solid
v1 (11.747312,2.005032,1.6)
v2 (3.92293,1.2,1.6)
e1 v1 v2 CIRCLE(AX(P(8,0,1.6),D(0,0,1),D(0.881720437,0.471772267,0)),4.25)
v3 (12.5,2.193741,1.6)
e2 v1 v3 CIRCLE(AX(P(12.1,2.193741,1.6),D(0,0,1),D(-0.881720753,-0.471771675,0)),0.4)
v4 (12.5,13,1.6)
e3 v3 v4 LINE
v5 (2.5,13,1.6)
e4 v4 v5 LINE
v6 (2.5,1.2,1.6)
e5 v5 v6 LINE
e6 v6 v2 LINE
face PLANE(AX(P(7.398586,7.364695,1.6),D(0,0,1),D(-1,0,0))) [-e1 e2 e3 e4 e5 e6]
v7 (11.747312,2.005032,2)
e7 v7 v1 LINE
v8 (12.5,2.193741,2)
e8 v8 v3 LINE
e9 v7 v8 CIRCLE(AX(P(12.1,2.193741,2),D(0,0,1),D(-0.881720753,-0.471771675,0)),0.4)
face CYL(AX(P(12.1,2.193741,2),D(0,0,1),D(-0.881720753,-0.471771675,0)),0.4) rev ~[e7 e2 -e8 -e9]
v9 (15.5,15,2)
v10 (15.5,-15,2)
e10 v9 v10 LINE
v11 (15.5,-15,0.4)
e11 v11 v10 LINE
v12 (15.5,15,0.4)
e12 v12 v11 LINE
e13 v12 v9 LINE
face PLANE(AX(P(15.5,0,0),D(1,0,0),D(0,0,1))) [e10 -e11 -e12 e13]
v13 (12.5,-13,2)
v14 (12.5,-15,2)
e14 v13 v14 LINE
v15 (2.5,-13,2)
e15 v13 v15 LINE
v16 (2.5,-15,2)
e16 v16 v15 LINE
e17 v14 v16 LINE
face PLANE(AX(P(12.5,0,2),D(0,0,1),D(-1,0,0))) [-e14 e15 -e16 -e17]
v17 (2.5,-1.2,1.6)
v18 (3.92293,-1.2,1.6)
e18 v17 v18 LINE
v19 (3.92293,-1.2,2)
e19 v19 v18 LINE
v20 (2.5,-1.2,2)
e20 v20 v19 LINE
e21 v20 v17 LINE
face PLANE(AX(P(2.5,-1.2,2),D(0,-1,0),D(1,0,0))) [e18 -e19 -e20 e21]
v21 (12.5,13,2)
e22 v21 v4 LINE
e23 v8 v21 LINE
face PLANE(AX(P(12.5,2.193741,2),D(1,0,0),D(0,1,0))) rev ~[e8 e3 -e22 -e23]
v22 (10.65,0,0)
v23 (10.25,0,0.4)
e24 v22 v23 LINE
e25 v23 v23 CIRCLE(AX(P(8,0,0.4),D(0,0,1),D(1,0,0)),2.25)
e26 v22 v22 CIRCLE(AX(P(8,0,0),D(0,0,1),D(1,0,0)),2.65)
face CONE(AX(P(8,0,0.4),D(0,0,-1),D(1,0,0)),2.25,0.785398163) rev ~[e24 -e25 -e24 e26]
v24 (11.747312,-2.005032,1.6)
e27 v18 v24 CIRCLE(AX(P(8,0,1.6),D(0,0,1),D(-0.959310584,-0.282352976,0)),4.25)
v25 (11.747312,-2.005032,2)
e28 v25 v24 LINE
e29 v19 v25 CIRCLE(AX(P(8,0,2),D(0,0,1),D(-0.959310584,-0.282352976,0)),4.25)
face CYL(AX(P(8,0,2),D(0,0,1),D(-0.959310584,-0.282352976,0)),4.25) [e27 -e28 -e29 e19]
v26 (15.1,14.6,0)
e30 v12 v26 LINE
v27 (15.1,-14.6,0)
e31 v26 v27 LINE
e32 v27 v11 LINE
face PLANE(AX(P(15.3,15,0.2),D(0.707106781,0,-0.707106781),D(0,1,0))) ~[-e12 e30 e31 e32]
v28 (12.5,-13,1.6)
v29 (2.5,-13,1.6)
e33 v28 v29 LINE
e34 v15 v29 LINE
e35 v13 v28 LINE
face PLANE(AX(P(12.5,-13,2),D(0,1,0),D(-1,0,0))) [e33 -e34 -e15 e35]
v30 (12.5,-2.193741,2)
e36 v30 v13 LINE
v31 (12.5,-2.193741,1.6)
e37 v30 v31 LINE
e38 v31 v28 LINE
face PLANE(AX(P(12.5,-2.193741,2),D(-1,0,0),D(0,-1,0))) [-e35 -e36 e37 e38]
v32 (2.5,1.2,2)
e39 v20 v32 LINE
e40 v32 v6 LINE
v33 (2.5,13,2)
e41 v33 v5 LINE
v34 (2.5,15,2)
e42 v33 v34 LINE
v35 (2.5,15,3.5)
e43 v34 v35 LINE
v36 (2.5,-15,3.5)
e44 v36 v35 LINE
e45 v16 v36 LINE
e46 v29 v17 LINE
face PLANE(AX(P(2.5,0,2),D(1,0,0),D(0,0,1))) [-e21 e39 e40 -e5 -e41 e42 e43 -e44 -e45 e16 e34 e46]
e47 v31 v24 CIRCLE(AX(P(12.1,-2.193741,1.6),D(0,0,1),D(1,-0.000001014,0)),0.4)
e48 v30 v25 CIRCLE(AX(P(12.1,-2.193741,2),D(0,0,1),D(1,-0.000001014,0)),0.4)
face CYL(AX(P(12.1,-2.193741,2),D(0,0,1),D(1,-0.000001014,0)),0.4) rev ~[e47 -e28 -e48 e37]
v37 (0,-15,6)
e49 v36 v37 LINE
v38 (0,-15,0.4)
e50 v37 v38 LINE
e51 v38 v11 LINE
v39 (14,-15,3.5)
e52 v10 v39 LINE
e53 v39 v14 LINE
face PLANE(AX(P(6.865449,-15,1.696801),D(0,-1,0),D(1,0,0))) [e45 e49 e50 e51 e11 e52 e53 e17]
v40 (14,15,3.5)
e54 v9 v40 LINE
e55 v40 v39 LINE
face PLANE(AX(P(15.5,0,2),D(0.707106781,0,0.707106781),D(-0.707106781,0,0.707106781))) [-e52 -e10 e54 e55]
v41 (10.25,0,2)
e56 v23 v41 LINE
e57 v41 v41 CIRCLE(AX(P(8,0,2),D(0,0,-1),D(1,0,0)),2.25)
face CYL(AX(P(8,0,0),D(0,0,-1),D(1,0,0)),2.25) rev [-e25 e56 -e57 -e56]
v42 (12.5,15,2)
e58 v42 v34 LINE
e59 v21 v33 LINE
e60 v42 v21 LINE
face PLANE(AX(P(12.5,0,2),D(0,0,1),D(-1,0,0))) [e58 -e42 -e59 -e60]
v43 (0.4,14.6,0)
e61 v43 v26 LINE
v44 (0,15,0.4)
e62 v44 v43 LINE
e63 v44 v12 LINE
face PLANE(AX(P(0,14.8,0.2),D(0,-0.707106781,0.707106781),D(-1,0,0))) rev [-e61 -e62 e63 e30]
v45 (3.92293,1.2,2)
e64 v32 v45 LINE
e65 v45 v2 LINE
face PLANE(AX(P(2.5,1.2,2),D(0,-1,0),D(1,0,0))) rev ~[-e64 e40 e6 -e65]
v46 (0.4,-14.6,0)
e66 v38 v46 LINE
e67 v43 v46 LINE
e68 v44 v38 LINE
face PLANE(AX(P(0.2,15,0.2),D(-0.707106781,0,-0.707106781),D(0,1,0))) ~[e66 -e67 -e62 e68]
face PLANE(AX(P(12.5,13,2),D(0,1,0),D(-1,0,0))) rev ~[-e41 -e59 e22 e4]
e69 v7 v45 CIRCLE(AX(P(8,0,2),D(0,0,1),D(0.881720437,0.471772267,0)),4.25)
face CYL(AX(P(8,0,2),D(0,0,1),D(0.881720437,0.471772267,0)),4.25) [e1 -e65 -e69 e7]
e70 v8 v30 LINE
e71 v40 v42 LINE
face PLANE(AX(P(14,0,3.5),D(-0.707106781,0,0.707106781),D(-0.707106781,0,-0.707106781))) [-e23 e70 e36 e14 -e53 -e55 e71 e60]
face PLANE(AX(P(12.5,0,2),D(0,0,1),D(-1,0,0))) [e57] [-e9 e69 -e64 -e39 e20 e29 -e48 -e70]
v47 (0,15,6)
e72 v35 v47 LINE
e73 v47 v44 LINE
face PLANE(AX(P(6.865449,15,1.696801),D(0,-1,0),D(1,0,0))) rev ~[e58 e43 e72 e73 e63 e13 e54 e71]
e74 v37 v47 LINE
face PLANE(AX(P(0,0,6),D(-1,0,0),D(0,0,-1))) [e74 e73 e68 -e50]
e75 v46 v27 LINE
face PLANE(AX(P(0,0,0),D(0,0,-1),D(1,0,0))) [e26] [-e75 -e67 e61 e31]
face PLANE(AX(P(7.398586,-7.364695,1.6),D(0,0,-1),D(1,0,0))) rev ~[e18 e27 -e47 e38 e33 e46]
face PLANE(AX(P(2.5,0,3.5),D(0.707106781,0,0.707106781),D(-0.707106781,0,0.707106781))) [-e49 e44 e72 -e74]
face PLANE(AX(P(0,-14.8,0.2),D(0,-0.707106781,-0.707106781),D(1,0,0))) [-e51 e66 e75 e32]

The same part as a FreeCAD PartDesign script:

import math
import FreeCAD as App
import Part
import Sketcher
from FreeCAD import Vector
Q = App.Units.Quantity


def edges_at(feature, points):
    """Names of the edges that pass closest to the given points."""
    edges = feature.Shape.Edges
    near = lambda p: min(range(len(edges)), key=lambda i: edges[i].distToShape(Part.Vertex(*p))[0])
    return sorted({f"Edge{near(p) + 1}" for p in points})

doc = App.newDocument("Part")
body = doc.addObject("PartDesign::Body", "Body")

sketch1 = body.newObject("Sketcher::SketchObject", "Sketch")
sketch1.AttachmentSupport = (doc.getObject("XZ_Plane"), [""])
sketch1.MapMode = "FlatFace"
sketch1.addGeometry(Part.LineSegment(Vector(0, 6, 0), Vector(0, 0, 0)), False)
sketch1.addGeometry(Part.LineSegment(Vector(0, 0, 0), Vector(15.5, 0, 0)), False)
sketch1.addGeometry(Part.LineSegment(Vector(15.5, 0, 0), Vector(15.5, 2, 0)), False)
sketch1.addGeometry(Part.LineSegment(Vector(15.5, 2, 0), Vector(14, 3.5, 0)), False)
sketch1.addGeometry(Part.LineSegment(Vector(14, 3.5, 0), Vector(12.5, 2, 0)), False)
sketch1.addGeometry(Part.LineSegment(Vector(12.5, 2, 0), Vector(2.5, 2, 0)), False)
sketch1.addGeometry(Part.LineSegment(Vector(2.5, 2, 0), Vector(2.5, 3.5, 0)), False)
sketch1.addGeometry(Part.LineSegment(Vector(2.5, 3.5, 0), Vector(0, 6, 0)), False)
sketch1.addConstraint(Sketcher.Constraint("Coincident", 0, 2, 1, 1))
sketch1.addConstraint(Sketcher.Constraint("Coincident", 1, 2, 2, 1))
sketch1.addConstraint(Sketcher.Constraint("Coincident", 2, 2, 3, 1))
sketch1.addConstraint(Sketcher.Constraint("Coincident", 3, 2, 4, 1))
sketch1.addConstraint(Sketcher.Constraint("Coincident", 4, 2, 5, 1))
sketch1.addConstraint(Sketcher.Constraint("Coincident", 5, 2, 6, 1))
sketch1.addConstraint(Sketcher.Constraint("Coincident", 6, 2, 7, 1))
sketch1.addConstraint(Sketcher.Constraint("Coincident", 7, 2, 0, 1))
sketch1.addConstraint(Sketcher.Constraint("Vertical", 0))
sketch1.addConstraint(Sketcher.Constraint("Horizontal", 1))
sketch1.addConstraint(Sketcher.Constraint("Vertical", 2))
sketch1.addConstraint(Sketcher.Constraint("Horizontal", 5))
sketch1.addConstraint(Sketcher.Constraint("Vertical", 6))
sketch1.addConstraint(Sketcher.Constraint("Coincident", 0, 2, -1, 1))
sketch1.addConstraint(Sketcher.Constraint("Perpendicular", 3, 4))
sketch1.addConstraint(Sketcher.Constraint("Perpendicular", 4, 7))
sketch1.addConstraint(Sketcher.Constraint("Horizontal", 2, 2, 4, 2))
sketch1.addConstraint(Sketcher.Constraint("Horizontal", 3, 2, 6, 2))
sketch1.addConstraint(Sketcher.Constraint("Equal", 3, 4))
sketch1.addConstraint(Sketcher.Constraint("DistanceX", 5, 2, 5, 1, Q("10 mm")))
sketch1.addConstraint(Sketcher.Constraint("DistanceY", 0, 2, 0, 1, Q("6 mm")))
sketch1.addConstraint(Sketcher.Constraint("DistanceY", 2, 1, 2, 2, Q("2 mm")))
sketch1.addConstraint(Sketcher.Constraint("DistanceX", 1, 1, 1, 2, Q("15.5 mm")))
pad1 = body.newObject("PartDesign::Pad", "Pad")
pad1.Profile = sketch1
pad1.Length = 30
pad1.Midplane = True

sketch2 = body.newObject("Sketcher::SketchObject", "Sketch001")
sketch2.AttachmentSupport = (doc.getObject("XY_Plane"), [""])
sketch2.MapMode = "FlatFace"
sketch2.addGeometry(Part.Circle(Vector(8, 0, 0), Vector(0, 0, 1), 2.2), False)
sketch2.addConstraint(Sketcher.Constraint("PointOnObject", 0, 3, -1))
sketch2.addConstraint(Sketcher.Constraint("Diameter", 0, Q("4.5 mm")))
sketch2.addConstraint(Sketcher.Constraint("DistanceX", -1, 1, 0, 3, Q("8 mm")))
pocket1 = body.newObject("PartDesign::Pocket", "Pocket")
pocket1.Profile = sketch2
pocket1.Type = "ThroughAll"
pocket1.Reversed = True

sketch3 = body.newObject("Sketcher::SketchObject", "Sketch002")
sketch3.AttachmentSupport = (doc.getObject("XY_Plane"), [""])
sketch3.MapMode = "FlatFace"
sketch3.AttachmentOffset = App.Placement(Vector(0, 0, 2), App.Rotation())
sketch3.addGeometry(Part.LineSegment(Vector(2.5, -13, 0), Vector(12.5, -13, 0)), False)
sketch3.addGeometry(Part.LineSegment(Vector(12.5, -13, 0), Vector(12.5, -2.19, 0)), False)
sketch3.addGeometry(Part.ArcOfCircle(Part.Circle(Vector(12.1, -2.19, 0), Vector(0, 0, 1), 0.4), math.radians(0), math.radians(152)), False)
sketch3.addGeometry(Part.ArcOfCircle(Part.Circle(Vector(8, 0, 0), Vector(0, 0, 1), 4.25), math.radians(-164), math.radians(-28)), False)
sketch3.addGeometry(Part.LineSegment(Vector(3.92, -1.2, 0), Vector(2.5, -1.2, 0)), False)
sketch3.addGeometry(Part.LineSegment(Vector(2.5, -1.2, 0), Vector(2.5, -13, 0)), False)
sketch3.addGeometry(Part.LineSegment(Vector(12.5, 13, 0), Vector(2.5, 13, 0)), False)
sketch3.addGeometry(Part.LineSegment(Vector(2.5, 13, 0), Vector(2.5, 1.2, 0)), False)
sketch3.addGeometry(Part.LineSegment(Vector(2.5, 1.2, 0), Vector(3.92, 1.2, 0)), False)
sketch3.addGeometry(Part.ArcOfCircle(Part.Circle(Vector(8, 0, 0), Vector(0, 0, 1), 4.25), math.radians(28), math.radians(164)), False)
sketch3.addGeometry(Part.ArcOfCircle(Part.Circle(Vector(12.1, 2.19, 0), Vector(0, 0, 1), 0.4), math.radians(-152), math.radians(0)), False)
sketch3.addGeometry(Part.LineSegment(Vector(12.5, 2.19, 0), Vector(12.5, 13, 0)), False)
sketch3.addConstraint(Sketcher.Constraint("Coincident", 0, 2, 1, 1))
sketch3.addConstraint(Sketcher.Constraint("Tangent", 1, 2, 2, 1))
sketch3.addConstraint(Sketcher.Constraint("Tangent", 2, 2, 3, 2))
sketch3.addConstraint(Sketcher.Constraint("Coincident", 3, 1, 4, 1))
sketch3.addConstraint(Sketcher.Constraint("Coincident", 4, 2, 5, 1))
sketch3.addConstraint(Sketcher.Constraint("Coincident", 5, 2, 0, 1))
sketch3.addConstraint(Sketcher.Constraint("Coincident", 6, 2, 7, 1))
sketch3.addConstraint(Sketcher.Constraint("Coincident", 7, 2, 8, 1))
sketch3.addConstraint(Sketcher.Constraint("Coincident", 8, 2, 9, 2))
sketch3.addConstraint(Sketcher.Constraint("Tangent", 9, 1, 10, 1))
sketch3.addConstraint(Sketcher.Constraint("Tangent", 10, 2, 11, 1))
sketch3.addConstraint(Sketcher.Constraint("Coincident", 11, 2, 6, 1))
sketch3.addConstraint(Sketcher.Constraint("Horizontal", 0))
sketch3.addConstraint(Sketcher.Constraint("Vertical", 1))
sketch3.addConstraint(Sketcher.Constraint("Horizontal", 4))
sketch3.addConstraint(Sketcher.Constraint("Vertical", 5))
sketch3.addConstraint(Sketcher.Constraint("Horizontal", 6))
sketch3.addConstraint(Sketcher.Constraint("Vertical", 7))
sketch3.addConstraint(Sketcher.Constraint("Horizontal", 8))
sketch3.addConstraint(Sketcher.Constraint("Vertical", 11))
sketch3.addConstraint(Sketcher.Constraint("Coincident", 9, 3, 3, 3))
sketch3.addConstraint(Sketcher.Constraint("Equal", 3, 9))
sketch3.addConstraint(Sketcher.Constraint("Equal", 2, 10))
sketch3.addConstraint(Sketcher.Constraint("Symmetric", 2, 3, 10, 3, -1))
sketch3.addConstraint(Sketcher.Constraint("Symmetric", 5, 2, 6, 2, -1))
sketch3.addConstraint(Sketcher.Constraint("Vertical", 3, 1, 8, 2))
sketch3.addConstraint(Sketcher.Constraint("Radius", 2, Q("0.4 mm")))
sketch3.addConstraint(Sketcher.Constraint("DistanceX", 0, 1, 0, 2, Q("10 mm")))
sketch3.addConstraint(Sketcher.Constraint("Radius", 3, Q("4.25 mm")))
sketch3.addConstraint(Sketcher.Constraint("DistanceY", 5, 2, 5, 1, Q("11.8 mm")))
sketch3.addConstraint(Sketcher.Constraint("DistanceX", -1, 1, 3, 3, Q("8 mm")))
sketch3.addConstraint(Sketcher.Constraint("DistanceY", 0, 2, -1, 1, Q("13 mm")))
sketch3.addConstraint(Sketcher.Constraint("DistanceX", -1, 1, 2, 3, Q("12.1 mm")))
pocket2 = body.newObject("PartDesign::Pocket", "Pocket001")
pocket2.Profile = sketch3
pocket2.Length = 0.4
doc.recompute()

chamfer = body.newObject("PartDesign::Chamfer", "Chamfer")
chamfer.Base = (pocket2, edges_at(pocket2, [
    (0, 0, 0),
    (7.75, 15, 0),
    (7.75, -15, 0),
    (15.5, 0, 0),
    (5.75, 0, 0),
]))
chamfer.Size = 0.4

doc.recompute()
